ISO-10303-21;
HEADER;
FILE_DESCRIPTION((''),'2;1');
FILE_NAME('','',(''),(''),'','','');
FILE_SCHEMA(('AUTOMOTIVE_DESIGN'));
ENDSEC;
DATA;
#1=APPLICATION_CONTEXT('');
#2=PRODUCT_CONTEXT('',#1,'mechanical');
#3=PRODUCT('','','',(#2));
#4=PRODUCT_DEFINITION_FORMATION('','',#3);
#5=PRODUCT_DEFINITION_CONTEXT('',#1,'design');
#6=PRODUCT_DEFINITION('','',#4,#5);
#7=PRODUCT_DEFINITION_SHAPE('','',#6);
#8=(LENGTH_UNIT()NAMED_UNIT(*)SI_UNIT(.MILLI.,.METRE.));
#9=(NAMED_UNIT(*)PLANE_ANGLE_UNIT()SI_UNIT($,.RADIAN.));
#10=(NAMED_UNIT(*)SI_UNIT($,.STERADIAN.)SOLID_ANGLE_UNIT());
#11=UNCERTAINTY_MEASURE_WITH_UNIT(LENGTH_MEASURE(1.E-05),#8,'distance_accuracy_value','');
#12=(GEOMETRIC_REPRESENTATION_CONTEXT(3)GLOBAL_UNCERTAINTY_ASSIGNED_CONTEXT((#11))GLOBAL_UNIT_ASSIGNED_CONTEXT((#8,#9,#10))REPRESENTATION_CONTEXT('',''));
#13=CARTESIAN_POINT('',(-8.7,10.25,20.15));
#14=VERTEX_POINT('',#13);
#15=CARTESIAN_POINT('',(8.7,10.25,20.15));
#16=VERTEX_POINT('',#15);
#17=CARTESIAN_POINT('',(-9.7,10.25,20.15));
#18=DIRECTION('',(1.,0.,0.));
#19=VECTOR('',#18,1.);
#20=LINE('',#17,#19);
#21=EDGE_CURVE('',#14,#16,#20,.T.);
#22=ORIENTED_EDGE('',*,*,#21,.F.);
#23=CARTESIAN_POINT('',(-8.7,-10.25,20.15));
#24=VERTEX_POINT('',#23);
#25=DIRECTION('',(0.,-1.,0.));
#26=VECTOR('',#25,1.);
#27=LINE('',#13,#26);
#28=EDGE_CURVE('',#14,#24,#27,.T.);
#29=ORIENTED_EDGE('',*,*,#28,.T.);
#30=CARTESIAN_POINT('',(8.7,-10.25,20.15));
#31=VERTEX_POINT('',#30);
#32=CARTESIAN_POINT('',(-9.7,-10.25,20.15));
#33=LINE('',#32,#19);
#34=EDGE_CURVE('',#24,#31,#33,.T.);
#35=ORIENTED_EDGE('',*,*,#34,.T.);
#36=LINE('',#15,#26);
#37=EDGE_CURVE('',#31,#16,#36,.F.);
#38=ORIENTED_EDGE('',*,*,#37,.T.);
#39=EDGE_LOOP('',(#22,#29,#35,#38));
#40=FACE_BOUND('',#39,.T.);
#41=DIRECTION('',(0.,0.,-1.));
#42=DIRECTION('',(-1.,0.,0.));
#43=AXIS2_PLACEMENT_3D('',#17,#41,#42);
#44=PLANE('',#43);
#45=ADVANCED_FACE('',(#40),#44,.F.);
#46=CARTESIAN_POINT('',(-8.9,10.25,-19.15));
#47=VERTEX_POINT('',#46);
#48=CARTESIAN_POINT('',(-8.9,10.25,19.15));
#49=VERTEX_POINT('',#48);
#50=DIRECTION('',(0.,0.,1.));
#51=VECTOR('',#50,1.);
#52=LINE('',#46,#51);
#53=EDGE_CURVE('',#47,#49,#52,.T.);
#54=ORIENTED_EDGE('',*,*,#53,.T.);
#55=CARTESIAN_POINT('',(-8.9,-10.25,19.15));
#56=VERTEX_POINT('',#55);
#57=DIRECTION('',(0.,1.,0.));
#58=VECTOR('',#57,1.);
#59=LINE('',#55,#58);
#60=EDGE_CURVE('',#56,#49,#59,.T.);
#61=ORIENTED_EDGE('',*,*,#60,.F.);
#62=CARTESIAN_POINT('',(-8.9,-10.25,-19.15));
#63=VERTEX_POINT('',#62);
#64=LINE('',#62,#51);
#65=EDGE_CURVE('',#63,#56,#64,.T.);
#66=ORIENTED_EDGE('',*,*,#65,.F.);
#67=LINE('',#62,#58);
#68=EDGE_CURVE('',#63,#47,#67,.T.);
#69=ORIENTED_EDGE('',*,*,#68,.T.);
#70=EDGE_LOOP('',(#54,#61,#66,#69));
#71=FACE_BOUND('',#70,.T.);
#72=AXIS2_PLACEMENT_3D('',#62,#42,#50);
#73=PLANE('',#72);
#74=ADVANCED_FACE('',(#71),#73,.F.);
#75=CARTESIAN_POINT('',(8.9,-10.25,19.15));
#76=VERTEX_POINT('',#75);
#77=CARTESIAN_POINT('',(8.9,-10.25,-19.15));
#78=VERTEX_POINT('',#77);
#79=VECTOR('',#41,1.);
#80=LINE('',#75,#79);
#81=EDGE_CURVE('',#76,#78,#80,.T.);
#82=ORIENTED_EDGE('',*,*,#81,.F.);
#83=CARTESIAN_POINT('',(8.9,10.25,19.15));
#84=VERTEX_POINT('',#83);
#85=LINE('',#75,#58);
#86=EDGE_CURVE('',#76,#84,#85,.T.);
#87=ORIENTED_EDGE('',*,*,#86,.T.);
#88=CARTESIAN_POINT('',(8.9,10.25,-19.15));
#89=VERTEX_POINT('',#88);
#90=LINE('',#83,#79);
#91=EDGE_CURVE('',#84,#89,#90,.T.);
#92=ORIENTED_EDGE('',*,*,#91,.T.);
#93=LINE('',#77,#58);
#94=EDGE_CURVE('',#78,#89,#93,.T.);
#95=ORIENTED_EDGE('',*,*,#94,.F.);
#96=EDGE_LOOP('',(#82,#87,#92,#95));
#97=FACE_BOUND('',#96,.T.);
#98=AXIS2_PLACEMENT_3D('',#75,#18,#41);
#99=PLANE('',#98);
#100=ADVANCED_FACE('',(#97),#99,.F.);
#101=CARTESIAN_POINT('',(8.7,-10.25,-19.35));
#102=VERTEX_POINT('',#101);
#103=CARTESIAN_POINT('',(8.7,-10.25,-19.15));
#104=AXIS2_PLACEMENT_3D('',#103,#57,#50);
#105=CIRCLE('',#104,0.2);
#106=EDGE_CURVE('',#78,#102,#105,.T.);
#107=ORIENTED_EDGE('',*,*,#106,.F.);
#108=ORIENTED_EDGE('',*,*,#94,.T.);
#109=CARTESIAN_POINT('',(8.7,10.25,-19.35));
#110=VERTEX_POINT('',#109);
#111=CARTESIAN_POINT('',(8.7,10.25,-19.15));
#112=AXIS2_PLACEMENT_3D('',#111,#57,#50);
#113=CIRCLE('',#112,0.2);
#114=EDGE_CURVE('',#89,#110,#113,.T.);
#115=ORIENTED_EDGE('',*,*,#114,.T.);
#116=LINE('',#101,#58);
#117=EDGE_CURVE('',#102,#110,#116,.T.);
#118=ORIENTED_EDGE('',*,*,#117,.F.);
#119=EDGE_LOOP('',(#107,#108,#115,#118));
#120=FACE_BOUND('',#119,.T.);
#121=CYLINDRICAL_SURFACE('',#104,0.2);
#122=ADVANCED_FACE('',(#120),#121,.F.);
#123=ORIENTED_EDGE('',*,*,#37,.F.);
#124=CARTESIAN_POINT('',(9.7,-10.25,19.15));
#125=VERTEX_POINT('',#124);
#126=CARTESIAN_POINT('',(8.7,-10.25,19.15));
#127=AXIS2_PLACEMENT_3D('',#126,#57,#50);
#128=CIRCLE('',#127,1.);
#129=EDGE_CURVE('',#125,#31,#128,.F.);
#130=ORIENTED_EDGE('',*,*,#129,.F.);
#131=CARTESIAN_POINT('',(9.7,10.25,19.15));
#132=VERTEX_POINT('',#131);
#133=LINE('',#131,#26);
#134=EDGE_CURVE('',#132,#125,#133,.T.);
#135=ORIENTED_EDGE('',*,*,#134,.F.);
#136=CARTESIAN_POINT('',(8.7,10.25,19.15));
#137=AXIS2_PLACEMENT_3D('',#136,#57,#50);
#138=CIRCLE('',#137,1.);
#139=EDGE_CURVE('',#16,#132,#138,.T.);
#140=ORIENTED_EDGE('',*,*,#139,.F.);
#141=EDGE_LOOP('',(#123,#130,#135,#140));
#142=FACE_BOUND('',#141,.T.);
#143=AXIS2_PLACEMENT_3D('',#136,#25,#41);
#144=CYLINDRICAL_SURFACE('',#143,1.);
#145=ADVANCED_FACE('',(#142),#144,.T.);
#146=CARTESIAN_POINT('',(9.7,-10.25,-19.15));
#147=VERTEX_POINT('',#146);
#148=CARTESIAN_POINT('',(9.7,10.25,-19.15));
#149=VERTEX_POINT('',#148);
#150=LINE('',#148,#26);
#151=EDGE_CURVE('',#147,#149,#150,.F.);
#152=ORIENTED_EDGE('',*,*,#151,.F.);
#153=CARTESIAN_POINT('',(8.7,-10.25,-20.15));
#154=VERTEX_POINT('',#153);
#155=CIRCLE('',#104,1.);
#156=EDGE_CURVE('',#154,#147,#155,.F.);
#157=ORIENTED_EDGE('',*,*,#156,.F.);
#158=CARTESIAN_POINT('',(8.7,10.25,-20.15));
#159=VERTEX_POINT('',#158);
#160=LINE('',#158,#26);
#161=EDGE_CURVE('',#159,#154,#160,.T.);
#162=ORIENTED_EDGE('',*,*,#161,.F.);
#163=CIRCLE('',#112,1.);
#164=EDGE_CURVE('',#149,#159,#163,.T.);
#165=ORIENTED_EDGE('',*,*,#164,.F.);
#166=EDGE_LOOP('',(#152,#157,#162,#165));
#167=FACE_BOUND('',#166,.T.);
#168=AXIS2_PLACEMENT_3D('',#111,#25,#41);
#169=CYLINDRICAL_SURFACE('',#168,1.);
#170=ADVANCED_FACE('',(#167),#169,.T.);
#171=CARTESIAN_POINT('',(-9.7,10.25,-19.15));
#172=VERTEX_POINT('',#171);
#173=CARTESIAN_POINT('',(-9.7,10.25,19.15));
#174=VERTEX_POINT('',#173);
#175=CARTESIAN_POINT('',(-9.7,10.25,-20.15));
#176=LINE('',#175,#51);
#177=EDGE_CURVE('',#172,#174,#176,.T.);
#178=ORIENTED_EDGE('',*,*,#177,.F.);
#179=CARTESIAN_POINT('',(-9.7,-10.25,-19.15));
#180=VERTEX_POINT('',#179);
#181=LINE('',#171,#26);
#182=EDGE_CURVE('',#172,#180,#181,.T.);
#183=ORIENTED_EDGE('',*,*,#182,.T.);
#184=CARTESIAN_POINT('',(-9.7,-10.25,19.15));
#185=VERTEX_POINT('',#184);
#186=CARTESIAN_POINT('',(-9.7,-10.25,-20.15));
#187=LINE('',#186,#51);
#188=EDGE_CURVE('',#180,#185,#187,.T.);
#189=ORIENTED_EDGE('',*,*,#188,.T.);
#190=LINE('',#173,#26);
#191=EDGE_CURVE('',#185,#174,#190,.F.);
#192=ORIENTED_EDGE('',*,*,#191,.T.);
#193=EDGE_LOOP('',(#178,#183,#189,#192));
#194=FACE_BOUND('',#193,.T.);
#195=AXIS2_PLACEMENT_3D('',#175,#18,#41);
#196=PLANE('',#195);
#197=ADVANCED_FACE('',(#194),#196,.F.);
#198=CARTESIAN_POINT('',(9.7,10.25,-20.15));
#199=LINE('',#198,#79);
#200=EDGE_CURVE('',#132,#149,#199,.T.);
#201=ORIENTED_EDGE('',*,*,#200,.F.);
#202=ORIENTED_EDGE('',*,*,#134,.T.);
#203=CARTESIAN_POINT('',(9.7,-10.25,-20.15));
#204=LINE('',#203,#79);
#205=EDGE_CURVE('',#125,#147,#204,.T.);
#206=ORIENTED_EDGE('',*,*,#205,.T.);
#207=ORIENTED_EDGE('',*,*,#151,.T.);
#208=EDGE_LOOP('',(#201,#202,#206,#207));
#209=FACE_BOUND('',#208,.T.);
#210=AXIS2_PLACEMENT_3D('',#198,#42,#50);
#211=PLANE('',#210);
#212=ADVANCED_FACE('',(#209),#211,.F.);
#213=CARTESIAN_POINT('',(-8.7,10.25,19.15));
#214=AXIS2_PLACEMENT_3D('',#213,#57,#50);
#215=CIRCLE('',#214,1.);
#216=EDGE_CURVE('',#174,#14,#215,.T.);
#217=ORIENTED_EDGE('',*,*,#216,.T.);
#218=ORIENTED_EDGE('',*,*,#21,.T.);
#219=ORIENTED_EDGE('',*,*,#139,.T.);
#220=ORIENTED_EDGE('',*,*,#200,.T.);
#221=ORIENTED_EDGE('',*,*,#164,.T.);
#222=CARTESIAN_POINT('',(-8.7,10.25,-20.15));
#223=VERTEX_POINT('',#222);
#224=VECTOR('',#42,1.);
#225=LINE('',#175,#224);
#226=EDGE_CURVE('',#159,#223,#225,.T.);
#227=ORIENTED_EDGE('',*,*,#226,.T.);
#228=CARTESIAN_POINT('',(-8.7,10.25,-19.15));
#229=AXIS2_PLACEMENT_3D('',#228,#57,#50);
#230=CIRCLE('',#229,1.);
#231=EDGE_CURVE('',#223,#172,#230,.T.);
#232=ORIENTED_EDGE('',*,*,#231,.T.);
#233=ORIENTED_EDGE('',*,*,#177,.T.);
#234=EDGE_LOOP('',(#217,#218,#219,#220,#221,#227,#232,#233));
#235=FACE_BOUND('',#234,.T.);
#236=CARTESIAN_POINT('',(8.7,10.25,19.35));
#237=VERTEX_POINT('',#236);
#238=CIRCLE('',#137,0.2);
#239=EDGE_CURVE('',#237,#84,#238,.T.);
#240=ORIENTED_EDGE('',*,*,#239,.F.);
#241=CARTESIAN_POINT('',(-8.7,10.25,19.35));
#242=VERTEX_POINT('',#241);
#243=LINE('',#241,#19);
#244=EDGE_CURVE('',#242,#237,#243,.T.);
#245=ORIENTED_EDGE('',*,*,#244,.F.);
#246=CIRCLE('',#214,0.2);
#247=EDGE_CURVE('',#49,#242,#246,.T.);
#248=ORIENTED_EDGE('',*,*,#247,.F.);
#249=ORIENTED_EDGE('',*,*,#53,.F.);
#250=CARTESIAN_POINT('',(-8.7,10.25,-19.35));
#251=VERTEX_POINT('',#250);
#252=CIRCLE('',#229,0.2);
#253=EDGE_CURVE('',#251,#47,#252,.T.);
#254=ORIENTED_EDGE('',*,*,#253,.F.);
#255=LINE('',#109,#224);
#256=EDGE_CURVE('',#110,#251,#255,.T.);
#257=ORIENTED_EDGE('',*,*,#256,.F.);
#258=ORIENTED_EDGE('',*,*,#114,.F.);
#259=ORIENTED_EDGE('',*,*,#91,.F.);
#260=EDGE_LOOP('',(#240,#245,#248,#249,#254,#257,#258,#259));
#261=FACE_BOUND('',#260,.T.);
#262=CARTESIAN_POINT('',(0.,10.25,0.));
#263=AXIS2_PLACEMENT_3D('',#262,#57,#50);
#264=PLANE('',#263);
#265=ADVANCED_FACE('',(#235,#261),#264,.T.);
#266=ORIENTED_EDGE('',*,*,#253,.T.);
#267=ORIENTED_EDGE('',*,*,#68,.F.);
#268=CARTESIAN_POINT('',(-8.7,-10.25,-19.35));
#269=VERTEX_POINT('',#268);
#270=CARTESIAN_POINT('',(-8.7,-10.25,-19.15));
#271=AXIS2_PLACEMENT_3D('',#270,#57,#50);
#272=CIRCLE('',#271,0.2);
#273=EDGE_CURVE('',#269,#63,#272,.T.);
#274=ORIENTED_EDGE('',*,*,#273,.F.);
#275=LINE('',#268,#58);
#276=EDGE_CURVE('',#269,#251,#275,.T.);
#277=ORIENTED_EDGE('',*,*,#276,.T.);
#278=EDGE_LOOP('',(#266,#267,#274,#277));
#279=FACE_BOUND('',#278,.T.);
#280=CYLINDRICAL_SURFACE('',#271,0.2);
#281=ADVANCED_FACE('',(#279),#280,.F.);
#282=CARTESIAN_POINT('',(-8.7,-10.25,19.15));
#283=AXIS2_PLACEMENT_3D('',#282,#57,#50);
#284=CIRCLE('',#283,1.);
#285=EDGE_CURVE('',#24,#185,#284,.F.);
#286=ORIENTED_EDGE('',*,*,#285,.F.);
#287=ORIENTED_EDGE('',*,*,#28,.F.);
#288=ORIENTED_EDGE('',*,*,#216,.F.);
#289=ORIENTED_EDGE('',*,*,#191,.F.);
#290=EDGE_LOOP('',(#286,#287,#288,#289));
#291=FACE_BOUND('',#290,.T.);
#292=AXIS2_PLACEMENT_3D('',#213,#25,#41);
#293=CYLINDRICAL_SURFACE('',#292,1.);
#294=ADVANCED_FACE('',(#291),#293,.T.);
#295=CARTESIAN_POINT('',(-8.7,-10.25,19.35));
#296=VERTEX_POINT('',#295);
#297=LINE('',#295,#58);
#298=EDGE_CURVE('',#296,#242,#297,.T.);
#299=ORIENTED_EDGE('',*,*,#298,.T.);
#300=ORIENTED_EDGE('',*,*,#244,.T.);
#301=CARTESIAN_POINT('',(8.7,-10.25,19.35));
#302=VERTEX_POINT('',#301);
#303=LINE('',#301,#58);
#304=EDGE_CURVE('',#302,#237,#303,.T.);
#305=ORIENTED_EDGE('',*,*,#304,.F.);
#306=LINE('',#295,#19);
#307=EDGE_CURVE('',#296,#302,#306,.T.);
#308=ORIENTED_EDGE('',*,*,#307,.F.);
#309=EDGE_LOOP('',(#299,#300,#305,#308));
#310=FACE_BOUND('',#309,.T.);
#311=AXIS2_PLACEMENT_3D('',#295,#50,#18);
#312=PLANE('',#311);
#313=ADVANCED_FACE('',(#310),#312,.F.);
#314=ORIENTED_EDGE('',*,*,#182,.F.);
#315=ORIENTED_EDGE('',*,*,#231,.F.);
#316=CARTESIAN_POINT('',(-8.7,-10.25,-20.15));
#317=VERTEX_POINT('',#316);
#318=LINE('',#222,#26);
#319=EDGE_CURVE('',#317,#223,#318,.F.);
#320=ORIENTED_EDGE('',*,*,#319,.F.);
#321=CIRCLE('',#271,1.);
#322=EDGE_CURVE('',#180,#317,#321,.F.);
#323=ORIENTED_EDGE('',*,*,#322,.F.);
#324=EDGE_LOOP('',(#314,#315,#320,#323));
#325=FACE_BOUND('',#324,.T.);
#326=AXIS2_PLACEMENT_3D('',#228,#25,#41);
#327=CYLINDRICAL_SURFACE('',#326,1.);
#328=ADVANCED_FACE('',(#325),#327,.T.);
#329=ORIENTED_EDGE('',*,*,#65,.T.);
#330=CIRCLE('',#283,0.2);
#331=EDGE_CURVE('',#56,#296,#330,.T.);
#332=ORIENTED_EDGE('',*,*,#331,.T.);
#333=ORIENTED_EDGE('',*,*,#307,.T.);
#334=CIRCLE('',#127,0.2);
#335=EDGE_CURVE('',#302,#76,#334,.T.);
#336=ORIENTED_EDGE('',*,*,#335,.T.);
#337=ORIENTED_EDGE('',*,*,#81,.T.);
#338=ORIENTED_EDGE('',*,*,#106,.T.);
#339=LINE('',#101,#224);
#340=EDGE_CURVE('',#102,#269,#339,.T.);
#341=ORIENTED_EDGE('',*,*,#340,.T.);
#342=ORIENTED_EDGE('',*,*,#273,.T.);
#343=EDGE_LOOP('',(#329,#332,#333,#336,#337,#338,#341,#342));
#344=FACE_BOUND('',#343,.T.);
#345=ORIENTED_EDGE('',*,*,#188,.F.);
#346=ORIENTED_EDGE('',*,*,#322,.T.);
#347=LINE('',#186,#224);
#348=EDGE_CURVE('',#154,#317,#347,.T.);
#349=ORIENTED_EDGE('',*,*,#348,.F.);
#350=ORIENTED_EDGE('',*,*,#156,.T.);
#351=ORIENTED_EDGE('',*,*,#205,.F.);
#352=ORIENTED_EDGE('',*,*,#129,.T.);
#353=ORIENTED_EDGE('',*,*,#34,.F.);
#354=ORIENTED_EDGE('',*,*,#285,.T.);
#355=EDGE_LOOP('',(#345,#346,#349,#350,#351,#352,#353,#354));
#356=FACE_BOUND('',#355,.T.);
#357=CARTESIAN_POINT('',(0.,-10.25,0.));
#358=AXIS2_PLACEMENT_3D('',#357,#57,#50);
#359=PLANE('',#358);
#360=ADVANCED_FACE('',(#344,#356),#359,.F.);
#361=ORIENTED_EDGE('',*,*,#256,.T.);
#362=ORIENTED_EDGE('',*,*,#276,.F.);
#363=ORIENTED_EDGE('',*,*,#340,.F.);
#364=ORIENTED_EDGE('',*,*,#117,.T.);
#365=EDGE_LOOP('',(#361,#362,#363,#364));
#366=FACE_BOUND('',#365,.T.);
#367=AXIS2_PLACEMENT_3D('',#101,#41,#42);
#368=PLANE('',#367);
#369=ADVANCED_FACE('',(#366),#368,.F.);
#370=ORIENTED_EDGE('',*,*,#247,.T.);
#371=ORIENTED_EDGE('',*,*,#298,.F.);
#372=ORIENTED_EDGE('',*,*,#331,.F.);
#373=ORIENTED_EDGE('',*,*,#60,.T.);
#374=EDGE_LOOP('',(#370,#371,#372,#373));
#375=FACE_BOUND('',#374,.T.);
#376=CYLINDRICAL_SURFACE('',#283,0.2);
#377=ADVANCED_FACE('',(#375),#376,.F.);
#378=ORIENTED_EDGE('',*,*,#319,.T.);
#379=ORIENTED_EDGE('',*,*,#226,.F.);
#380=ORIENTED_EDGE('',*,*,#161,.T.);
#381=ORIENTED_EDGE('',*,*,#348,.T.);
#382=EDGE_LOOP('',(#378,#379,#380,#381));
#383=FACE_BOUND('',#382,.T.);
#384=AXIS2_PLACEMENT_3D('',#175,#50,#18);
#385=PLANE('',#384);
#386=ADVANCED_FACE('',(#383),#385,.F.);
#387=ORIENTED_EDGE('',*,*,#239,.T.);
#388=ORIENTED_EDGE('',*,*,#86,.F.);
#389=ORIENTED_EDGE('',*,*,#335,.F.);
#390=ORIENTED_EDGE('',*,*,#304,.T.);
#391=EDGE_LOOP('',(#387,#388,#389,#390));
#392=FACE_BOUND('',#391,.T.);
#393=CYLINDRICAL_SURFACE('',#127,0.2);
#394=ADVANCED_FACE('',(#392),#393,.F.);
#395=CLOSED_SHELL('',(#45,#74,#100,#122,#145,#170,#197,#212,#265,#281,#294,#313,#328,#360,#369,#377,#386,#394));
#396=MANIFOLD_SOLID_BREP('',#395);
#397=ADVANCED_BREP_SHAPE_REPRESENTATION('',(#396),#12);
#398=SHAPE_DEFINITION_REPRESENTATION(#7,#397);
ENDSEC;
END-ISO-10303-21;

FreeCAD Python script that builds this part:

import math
import FreeCAD as App
import Part
import Sketcher


def edges_at(feature, points):
    """Names of the edges that pass closest to the given points."""
    edges = feature.Shape.Edges
    near = lambda p: min(range(len(edges)), key=lambda i: edges[i].distToShape(Part.Vertex(*p))[0])
    return sorted({f"Edge{near(p) + 1}" for p in points})


def add_polygon(sketch, points):
    """Adds a closed chain of lines whose ends are joined by coincident constraints."""
    first, n = sketch.GeometryCount, len(points)
    for a, b in zip(points, points[1:] + points[:1]):
        sketch.addGeometry(Part.LineSegment(App.Vector(*a, 0), App.Vector(*b, 0)), False)
    for i in range(n):
        sketch.addConstraint(Sketcher.Constraint("Coincident", first + i, 2, first + (i + 1) % n, 1))

doc = App.newDocument("Part")
body = doc.addObject("PartDesign::Body", "Body")

sketch1 = body.newObject("Sketcher::SketchObject", "Sketch")
sketch1.AttachmentSupport = (doc.getObject("XZ_Plane"), [""])
sketch1.MapMode = "FlatFace"
add_polygon(sketch1, [(-9.7, -20.15), (-9.7, 20.15), (9.7, 20.15), (9.7, -20.15)])
sketch1.addConstraint([
    Sketcher.Constraint("Vertical", 0),
    Sketcher.Constraint("Horizontal", 1),
    Sketcher.Constraint("Vertical", 2),
    Sketcher.Constraint("Horizontal", 3),
    Sketcher.Constraint("Symmetric", 0, 2, 2, 2, -1, 1),
    Sketcher.Constraint("DistanceX", 1, 1, 1, 2, 19.4),
    Sketcher.Constraint("DistanceY", 0, 1, 0, 2, 40.3),
])
pad1 = body.newObject("PartDesign::Pad", "Pad")
pad1.Profile = sketch1
pad1.Length = 20.5
pad1.Midplane = True
doc.recompute()

fillet = body.newObject("PartDesign::Fillet", "Fillet")
fillet.Base = (pad1, edges_at(pad1, [
    (9.7, 0, 20.15),
    (-9.7, 0, 20.15),
    (-9.7, 0, -20.15),
    (9.7, 0, -20.15),
]))
fillet.Radius = 1

sketch2 = body.newObject("Sketcher::SketchObject", "Sketch001")
sketch2.AttachmentSupport = (doc.getObject("XZ_Plane"), [""])
sketch2.MapMode = "FlatFace"
sketch2.AttachmentOffset = App.Placement(App.Vector(0, 0, -10.25), App.Rotation())
sketch2.addGeometry([
    Part.LineSegment(App.Vector(8.7, -19.35, 0), App.Vector(-8.7, -19.35, 0)),
    Part.ArcOfCircle(Part.Circle(App.Vector(-8.7, -19.15, 0), App.Vector(0, 0, 1), 0.2), math.radians(-180), math.radians(-90)),
    Part.LineSegment(App.Vector(-8.9, -19.15, 0), App.Vector(-8.9, 19.15, 0)),
    Part.ArcOfCircle(Part.Circle(App.Vector(-8.7, 19.15, 0), App.Vector(0, 0, 1), 0.2), math.radians(90), math.radians(180)),
    Part.LineSegment(App.Vector(-8.7, 19.35, 0), App.Vector(8.7, 19.35, 0)),
    Part.ArcOfCircle(Part.Circle(App.Vector(8.7, 19.15, 0), App.Vector(0, 0, 1), 0.2), math.radians(0), math.radians(90)),
    Part.LineSegment(App.Vector(8.9, 19.15, 0), App.Vector(8.9, -19.15, 0)),
    Part.ArcOfCircle(Part.Circle(App.Vector(8.7, -19.15, 0), App.Vector(0, 0, 1), 0.2), math.radians(-90), math.radians(0)),
], False)
sketch2.addConstraint([
    Sketcher.Constraint("Tangent", 0, 2, 1, 2),
    Sketcher.Constraint("Tangent", 1, 1, 2, 1),
    Sketcher.Constraint("Tangent", 2, 2, 3, 2),
    Sketcher.Constraint("Tangent", 3, 1, 4, 1),
    Sketcher.Constraint("Tangent", 4, 2, 5, 2),
    Sketcher.Constraint("Tangent", 5, 1, 6, 1),
    Sketcher.Constraint("Tangent", 6, 2, 7, 2),
    Sketcher.Constraint("Tangent", 7, 1, 0, 1),
    Sketcher.Constraint("Horizontal", 0),
    Sketcher.Constraint("Vertical", 2),
    Sketcher.Constraint("Horizontal", 4),
    Sketcher.Constraint("Vertical", 6),
    Sketcher.Constraint("Equal", 1, 3),
    Sketcher.Constraint("Equal", 3, 5),
    Sketcher.Constraint("Equal", 5, 7),
    Sketcher.Constraint("Symmetric", 1, 3, 5, 3, -1, 1),
    Sketcher.Constraint("Radius", 1, 0.2),
    Sketcher.Constraint("DistanceX", 0, 2, 0, 1, 17.4),
    Sketcher.Constraint("DistanceY", 2, 1, 2, 2, 38.3),
])
pocket1 = body.newObject("PartDesign::Pocket", "Pocket")
pocket1.Profile = sketch2
pocket1.Type = "ThroughAll"
pocket1.Reversed = True

doc.recompute()
